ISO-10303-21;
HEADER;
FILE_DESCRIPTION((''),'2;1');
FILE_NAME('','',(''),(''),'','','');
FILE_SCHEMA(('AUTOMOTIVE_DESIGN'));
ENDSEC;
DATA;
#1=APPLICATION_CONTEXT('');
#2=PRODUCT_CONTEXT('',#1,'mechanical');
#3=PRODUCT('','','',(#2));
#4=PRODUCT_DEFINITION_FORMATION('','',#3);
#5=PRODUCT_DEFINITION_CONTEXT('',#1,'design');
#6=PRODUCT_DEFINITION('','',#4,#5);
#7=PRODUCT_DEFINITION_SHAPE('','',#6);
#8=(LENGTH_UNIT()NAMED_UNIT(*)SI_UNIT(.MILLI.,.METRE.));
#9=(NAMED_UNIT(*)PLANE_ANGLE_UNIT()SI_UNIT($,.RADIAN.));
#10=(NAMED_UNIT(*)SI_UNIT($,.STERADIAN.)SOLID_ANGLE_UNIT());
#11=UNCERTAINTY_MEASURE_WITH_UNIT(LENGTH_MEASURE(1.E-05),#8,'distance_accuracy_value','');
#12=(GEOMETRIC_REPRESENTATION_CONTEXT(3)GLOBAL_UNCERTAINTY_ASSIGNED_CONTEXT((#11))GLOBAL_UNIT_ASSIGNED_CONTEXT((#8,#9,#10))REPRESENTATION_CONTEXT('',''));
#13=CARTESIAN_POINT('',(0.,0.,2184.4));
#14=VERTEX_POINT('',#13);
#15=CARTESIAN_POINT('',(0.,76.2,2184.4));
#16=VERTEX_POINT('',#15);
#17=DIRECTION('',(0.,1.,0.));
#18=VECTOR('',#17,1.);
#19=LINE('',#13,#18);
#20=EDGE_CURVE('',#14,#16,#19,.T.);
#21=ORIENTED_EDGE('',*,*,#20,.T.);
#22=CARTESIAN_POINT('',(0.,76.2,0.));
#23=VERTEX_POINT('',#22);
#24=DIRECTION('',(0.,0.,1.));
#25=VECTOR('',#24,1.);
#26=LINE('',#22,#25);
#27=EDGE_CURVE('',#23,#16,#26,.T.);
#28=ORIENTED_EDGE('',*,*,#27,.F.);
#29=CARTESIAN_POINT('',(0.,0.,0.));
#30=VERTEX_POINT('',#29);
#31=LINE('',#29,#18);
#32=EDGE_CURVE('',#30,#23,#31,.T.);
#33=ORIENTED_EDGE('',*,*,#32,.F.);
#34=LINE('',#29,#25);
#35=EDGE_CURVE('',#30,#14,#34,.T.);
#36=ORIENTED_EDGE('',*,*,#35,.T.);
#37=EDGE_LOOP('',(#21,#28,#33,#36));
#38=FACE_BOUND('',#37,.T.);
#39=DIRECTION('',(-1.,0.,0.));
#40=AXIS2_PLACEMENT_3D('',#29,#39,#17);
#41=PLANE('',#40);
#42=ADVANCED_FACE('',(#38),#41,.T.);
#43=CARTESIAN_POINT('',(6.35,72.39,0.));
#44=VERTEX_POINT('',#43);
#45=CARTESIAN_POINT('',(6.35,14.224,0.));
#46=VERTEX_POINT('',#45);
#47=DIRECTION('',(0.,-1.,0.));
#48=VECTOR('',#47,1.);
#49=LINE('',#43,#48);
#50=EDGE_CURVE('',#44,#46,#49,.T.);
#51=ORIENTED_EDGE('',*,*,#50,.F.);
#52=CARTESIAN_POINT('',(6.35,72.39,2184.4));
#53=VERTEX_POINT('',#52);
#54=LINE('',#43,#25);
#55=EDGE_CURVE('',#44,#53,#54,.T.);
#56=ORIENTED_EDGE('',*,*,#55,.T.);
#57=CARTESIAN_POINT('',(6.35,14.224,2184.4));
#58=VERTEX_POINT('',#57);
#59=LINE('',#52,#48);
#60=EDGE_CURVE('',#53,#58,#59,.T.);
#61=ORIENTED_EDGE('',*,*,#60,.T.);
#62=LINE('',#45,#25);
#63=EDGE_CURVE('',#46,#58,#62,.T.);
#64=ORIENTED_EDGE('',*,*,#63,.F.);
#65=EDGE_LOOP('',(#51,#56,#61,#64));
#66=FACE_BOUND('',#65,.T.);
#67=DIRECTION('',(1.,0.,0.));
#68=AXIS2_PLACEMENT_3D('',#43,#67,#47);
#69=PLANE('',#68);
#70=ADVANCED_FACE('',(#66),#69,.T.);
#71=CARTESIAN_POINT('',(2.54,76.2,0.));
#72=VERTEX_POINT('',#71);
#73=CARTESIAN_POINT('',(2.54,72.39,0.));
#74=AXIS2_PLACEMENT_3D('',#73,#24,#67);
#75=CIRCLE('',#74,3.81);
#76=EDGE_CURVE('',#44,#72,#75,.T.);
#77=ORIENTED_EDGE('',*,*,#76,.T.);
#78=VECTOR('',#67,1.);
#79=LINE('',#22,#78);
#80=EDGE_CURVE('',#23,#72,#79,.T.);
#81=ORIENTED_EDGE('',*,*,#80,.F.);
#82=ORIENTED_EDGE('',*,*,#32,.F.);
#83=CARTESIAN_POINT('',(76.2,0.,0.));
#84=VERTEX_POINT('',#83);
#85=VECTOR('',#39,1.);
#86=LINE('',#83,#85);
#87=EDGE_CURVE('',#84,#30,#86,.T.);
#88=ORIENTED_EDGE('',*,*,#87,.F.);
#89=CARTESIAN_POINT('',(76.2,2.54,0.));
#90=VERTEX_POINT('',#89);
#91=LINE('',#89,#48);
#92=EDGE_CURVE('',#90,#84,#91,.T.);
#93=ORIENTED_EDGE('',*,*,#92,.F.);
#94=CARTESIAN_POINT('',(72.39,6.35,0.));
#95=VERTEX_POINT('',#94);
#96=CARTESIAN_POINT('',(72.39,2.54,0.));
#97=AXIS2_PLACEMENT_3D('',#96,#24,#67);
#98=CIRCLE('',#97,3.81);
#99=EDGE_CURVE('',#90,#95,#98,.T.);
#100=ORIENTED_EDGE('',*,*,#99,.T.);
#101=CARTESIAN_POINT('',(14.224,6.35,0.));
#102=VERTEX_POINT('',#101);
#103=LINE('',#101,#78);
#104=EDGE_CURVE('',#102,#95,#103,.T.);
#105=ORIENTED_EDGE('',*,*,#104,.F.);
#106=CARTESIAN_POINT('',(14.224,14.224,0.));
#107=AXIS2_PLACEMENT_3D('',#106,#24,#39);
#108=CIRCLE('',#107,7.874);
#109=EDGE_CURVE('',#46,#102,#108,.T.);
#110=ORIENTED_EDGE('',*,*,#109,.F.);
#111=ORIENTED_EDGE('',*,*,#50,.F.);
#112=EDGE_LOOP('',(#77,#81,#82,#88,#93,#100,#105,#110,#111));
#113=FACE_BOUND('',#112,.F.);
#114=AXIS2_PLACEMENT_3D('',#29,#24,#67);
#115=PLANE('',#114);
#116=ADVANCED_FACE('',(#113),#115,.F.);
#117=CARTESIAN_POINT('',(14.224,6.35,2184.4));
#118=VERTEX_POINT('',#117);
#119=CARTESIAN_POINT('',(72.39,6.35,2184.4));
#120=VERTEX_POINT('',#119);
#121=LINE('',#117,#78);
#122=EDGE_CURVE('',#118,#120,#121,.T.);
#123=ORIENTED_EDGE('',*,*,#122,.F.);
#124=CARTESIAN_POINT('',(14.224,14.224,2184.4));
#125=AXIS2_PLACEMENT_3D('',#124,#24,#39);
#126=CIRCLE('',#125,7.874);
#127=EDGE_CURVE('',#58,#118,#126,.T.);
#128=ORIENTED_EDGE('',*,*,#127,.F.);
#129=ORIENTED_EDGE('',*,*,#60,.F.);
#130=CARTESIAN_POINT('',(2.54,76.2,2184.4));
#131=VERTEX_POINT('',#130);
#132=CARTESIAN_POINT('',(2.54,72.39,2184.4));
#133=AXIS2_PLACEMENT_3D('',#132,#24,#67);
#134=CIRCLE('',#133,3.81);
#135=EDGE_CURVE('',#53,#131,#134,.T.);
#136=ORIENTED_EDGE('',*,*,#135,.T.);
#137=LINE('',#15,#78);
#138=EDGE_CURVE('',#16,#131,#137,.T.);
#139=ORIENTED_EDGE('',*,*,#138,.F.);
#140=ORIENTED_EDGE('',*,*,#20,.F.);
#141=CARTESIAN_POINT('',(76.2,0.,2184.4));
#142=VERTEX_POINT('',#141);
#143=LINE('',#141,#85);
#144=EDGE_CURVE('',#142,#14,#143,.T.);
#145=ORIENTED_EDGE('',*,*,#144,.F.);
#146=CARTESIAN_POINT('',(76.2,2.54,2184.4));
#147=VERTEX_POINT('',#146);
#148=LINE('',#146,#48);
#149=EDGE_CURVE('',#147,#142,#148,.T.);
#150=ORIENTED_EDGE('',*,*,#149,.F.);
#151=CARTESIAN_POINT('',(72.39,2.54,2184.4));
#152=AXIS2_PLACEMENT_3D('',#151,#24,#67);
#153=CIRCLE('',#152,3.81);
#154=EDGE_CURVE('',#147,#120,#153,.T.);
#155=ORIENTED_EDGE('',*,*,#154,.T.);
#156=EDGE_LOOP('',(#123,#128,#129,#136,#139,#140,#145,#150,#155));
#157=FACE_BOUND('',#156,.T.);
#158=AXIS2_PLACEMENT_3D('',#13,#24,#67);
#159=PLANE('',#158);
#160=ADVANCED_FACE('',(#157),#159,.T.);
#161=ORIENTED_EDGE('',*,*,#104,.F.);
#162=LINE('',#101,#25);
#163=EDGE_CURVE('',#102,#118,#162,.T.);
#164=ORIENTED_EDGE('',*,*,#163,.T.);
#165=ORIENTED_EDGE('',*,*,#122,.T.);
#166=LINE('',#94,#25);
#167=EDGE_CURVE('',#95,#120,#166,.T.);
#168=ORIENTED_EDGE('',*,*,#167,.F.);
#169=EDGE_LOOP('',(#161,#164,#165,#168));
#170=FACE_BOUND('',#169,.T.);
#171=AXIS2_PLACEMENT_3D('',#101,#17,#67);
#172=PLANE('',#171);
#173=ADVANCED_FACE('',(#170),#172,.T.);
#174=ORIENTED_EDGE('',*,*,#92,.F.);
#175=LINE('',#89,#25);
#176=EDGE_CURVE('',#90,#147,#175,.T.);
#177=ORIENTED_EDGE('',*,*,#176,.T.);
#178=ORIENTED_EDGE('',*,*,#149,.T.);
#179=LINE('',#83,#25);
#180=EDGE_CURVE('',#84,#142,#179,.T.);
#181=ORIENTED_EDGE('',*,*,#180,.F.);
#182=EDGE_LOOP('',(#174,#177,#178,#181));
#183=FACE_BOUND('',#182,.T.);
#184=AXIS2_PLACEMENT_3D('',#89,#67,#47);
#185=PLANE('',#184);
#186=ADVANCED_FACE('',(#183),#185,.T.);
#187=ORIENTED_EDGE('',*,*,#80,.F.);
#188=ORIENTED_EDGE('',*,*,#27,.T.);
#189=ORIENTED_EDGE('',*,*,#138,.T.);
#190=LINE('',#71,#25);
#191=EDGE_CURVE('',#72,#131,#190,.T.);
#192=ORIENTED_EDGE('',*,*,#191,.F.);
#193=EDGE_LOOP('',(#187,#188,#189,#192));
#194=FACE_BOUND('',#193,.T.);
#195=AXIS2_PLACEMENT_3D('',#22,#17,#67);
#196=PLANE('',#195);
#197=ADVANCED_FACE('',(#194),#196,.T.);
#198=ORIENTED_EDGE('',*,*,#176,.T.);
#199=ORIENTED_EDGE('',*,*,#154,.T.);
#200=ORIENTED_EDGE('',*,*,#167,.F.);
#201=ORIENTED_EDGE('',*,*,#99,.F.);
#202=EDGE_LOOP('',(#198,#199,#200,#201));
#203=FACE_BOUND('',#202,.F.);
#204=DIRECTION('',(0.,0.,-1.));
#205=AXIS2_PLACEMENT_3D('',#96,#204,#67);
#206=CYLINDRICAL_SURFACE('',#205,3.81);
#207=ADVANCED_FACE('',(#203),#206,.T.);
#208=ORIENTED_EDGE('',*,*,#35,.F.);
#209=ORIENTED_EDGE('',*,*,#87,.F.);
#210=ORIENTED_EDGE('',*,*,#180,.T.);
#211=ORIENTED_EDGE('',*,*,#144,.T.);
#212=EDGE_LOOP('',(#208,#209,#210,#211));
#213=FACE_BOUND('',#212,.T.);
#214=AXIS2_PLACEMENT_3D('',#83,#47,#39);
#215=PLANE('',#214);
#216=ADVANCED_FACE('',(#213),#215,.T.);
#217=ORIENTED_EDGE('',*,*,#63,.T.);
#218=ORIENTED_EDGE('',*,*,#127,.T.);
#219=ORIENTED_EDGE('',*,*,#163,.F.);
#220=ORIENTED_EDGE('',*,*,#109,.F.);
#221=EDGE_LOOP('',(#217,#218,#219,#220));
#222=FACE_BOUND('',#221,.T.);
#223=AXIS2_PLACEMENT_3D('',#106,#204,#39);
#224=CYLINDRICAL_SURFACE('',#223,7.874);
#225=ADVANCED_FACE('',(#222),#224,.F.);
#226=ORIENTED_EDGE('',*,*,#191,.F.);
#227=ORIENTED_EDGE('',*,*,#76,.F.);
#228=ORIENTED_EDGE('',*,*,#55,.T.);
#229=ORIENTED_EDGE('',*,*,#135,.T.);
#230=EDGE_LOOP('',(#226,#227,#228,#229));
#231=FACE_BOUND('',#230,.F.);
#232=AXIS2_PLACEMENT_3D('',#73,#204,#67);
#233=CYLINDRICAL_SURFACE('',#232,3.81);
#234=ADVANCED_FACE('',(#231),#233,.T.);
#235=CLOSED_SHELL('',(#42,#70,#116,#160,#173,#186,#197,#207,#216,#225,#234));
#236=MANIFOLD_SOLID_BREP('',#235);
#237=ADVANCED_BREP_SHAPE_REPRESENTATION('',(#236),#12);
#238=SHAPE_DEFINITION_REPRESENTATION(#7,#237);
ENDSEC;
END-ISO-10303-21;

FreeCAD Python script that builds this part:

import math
import FreeCAD as App
import Part
import Sketcher

V = App.Vector
Q = App.Units.Quantity

doc = App.newDocument("Part")
body = doc.addObject("PartDesign::Body", "Body")

# Sketch on XY plane
sketch1 = doc.addObject("Sketcher::SketchObject", "Sketch")
body.addObject(sketch1)
sketch1.AttachmentSupport = (doc.XY_Plane, [""])
sketch1.MapMode = "FlatFace"
sketch1.addGeometry(Part.LineSegment(V(0, 0, 0), V(76.2, 0, 0)), False)
sketch1.addGeometry(Part.LineSegment(V(76.2, 0, 0), V(76.2, 2.5, 0)), False)
sketch1.addGeometry(Part.ArcOfCircle(Part.Circle(V(72.4, 2.5, 0), V(0, 0, 1), 3.8), math.radians(0), math.radians(90)), False)
sketch1.addGeometry(Part.LineSegment(V(72.4, 6.3, 0), V(14.2, 6.3, 0)), False)
sketch1.addGeometry(Part.ArcOfCircle(Part.Circle(V(14.2, 14.2, 0), V(0, 0, 1), 7.9), math.radians(180), math.radians(270)), False)
sketch1.addGeometry(Part.LineSegment(V(6.3, 14.2, 0), V(6.3, 72.4, 0)), False)
sketch1.addGeometry(Part.ArcOfCircle(Part.Circle(V(2.5, 72.4, 0), V(0, 0, 1), 3.8), math.radians(0), math.radians(90)), False)
sketch1.addGeometry(Part.LineSegment(V(2.5, 76.2, 0), V(0, 76.2, 0)), False)
sketch1.addGeometry(Part.LineSegment(V(0, 76.2, 0), V(0, 0, 0)), False)
sketch1.addConstraint(Sketcher.Constraint("Coincident", 0, 2, 1, 1))
sketch1.addConstraint(Sketcher.Constraint("Tangent", 1, 2, 2, 1))
sketch1.addConstraint(Sketcher.Constraint("Tangent", 2, 2, 3, 1))
sketch1.addConstraint(Sketcher.Constraint("Tangent", 3, 2, 4, 2))
sketch1.addConstraint(Sketcher.Constraint("Tangent", 4, 1, 5, 1))
sketch1.addConstraint(Sketcher.Constraint("Tangent", 5, 2, 6, 1))
sketch1.addConstraint(Sketcher.Constraint("Tangent", 6, 2, 7, 1))
sketch1.addConstraint(Sketcher.Constraint("Coincident", 7, 2, 8, 1))
sketch1.addConstraint(Sketcher.Constraint("Coincident", 8, 2, 0, 1))
sketch1.addConstraint(Sketcher.Constraint("Horizontal", 0))
sketch1.addConstraint(Sketcher.Constraint("Vertical", 1))
sketch1.addConstraint(Sketcher.Constraint("Horizontal", 3))
sketch1.addConstraint(Sketcher.Constraint("Vertical", 5))
sketch1.addConstraint(Sketcher.Constraint("Horizontal", 7))
sketch1.addConstraint(Sketcher.Constraint("Vertical", 8))
sketch1.addConstraint(Sketcher.Constraint("Coincident", 8, 2, -1, 1))
sketch1.addConstraint(Sketcher.Constraint("Equal", 2, 6))
sketch1.addConstraint(Sketcher.Constraint("Equal", 7, 1))
sketch1.addConstraint(Sketcher.Constraint("Equal", 3, 5))
sketch1.addConstraint(Sketcher.Constraint("DistanceX", 0, 1, 0, 2, Q("3 in")))
sketch1.addConstraint(Sketcher.Constraint("Radius", 2, Q("0.15 in")))
sketch1.addConstraint(Sketcher.Constraint("Radius", 4, Q("0.31 in")))
sketch1.addConstraint(Sketcher.Constraint("DistanceY", -1, 1, 2, 2, Q("0.25 in")))
pad1 = doc.addObject("PartDesign::Pad", "Pad")
body.addObject(pad1)
pad1.Profile = sketch1
pad1.Length = Q("86 in")

doc.recompute()
